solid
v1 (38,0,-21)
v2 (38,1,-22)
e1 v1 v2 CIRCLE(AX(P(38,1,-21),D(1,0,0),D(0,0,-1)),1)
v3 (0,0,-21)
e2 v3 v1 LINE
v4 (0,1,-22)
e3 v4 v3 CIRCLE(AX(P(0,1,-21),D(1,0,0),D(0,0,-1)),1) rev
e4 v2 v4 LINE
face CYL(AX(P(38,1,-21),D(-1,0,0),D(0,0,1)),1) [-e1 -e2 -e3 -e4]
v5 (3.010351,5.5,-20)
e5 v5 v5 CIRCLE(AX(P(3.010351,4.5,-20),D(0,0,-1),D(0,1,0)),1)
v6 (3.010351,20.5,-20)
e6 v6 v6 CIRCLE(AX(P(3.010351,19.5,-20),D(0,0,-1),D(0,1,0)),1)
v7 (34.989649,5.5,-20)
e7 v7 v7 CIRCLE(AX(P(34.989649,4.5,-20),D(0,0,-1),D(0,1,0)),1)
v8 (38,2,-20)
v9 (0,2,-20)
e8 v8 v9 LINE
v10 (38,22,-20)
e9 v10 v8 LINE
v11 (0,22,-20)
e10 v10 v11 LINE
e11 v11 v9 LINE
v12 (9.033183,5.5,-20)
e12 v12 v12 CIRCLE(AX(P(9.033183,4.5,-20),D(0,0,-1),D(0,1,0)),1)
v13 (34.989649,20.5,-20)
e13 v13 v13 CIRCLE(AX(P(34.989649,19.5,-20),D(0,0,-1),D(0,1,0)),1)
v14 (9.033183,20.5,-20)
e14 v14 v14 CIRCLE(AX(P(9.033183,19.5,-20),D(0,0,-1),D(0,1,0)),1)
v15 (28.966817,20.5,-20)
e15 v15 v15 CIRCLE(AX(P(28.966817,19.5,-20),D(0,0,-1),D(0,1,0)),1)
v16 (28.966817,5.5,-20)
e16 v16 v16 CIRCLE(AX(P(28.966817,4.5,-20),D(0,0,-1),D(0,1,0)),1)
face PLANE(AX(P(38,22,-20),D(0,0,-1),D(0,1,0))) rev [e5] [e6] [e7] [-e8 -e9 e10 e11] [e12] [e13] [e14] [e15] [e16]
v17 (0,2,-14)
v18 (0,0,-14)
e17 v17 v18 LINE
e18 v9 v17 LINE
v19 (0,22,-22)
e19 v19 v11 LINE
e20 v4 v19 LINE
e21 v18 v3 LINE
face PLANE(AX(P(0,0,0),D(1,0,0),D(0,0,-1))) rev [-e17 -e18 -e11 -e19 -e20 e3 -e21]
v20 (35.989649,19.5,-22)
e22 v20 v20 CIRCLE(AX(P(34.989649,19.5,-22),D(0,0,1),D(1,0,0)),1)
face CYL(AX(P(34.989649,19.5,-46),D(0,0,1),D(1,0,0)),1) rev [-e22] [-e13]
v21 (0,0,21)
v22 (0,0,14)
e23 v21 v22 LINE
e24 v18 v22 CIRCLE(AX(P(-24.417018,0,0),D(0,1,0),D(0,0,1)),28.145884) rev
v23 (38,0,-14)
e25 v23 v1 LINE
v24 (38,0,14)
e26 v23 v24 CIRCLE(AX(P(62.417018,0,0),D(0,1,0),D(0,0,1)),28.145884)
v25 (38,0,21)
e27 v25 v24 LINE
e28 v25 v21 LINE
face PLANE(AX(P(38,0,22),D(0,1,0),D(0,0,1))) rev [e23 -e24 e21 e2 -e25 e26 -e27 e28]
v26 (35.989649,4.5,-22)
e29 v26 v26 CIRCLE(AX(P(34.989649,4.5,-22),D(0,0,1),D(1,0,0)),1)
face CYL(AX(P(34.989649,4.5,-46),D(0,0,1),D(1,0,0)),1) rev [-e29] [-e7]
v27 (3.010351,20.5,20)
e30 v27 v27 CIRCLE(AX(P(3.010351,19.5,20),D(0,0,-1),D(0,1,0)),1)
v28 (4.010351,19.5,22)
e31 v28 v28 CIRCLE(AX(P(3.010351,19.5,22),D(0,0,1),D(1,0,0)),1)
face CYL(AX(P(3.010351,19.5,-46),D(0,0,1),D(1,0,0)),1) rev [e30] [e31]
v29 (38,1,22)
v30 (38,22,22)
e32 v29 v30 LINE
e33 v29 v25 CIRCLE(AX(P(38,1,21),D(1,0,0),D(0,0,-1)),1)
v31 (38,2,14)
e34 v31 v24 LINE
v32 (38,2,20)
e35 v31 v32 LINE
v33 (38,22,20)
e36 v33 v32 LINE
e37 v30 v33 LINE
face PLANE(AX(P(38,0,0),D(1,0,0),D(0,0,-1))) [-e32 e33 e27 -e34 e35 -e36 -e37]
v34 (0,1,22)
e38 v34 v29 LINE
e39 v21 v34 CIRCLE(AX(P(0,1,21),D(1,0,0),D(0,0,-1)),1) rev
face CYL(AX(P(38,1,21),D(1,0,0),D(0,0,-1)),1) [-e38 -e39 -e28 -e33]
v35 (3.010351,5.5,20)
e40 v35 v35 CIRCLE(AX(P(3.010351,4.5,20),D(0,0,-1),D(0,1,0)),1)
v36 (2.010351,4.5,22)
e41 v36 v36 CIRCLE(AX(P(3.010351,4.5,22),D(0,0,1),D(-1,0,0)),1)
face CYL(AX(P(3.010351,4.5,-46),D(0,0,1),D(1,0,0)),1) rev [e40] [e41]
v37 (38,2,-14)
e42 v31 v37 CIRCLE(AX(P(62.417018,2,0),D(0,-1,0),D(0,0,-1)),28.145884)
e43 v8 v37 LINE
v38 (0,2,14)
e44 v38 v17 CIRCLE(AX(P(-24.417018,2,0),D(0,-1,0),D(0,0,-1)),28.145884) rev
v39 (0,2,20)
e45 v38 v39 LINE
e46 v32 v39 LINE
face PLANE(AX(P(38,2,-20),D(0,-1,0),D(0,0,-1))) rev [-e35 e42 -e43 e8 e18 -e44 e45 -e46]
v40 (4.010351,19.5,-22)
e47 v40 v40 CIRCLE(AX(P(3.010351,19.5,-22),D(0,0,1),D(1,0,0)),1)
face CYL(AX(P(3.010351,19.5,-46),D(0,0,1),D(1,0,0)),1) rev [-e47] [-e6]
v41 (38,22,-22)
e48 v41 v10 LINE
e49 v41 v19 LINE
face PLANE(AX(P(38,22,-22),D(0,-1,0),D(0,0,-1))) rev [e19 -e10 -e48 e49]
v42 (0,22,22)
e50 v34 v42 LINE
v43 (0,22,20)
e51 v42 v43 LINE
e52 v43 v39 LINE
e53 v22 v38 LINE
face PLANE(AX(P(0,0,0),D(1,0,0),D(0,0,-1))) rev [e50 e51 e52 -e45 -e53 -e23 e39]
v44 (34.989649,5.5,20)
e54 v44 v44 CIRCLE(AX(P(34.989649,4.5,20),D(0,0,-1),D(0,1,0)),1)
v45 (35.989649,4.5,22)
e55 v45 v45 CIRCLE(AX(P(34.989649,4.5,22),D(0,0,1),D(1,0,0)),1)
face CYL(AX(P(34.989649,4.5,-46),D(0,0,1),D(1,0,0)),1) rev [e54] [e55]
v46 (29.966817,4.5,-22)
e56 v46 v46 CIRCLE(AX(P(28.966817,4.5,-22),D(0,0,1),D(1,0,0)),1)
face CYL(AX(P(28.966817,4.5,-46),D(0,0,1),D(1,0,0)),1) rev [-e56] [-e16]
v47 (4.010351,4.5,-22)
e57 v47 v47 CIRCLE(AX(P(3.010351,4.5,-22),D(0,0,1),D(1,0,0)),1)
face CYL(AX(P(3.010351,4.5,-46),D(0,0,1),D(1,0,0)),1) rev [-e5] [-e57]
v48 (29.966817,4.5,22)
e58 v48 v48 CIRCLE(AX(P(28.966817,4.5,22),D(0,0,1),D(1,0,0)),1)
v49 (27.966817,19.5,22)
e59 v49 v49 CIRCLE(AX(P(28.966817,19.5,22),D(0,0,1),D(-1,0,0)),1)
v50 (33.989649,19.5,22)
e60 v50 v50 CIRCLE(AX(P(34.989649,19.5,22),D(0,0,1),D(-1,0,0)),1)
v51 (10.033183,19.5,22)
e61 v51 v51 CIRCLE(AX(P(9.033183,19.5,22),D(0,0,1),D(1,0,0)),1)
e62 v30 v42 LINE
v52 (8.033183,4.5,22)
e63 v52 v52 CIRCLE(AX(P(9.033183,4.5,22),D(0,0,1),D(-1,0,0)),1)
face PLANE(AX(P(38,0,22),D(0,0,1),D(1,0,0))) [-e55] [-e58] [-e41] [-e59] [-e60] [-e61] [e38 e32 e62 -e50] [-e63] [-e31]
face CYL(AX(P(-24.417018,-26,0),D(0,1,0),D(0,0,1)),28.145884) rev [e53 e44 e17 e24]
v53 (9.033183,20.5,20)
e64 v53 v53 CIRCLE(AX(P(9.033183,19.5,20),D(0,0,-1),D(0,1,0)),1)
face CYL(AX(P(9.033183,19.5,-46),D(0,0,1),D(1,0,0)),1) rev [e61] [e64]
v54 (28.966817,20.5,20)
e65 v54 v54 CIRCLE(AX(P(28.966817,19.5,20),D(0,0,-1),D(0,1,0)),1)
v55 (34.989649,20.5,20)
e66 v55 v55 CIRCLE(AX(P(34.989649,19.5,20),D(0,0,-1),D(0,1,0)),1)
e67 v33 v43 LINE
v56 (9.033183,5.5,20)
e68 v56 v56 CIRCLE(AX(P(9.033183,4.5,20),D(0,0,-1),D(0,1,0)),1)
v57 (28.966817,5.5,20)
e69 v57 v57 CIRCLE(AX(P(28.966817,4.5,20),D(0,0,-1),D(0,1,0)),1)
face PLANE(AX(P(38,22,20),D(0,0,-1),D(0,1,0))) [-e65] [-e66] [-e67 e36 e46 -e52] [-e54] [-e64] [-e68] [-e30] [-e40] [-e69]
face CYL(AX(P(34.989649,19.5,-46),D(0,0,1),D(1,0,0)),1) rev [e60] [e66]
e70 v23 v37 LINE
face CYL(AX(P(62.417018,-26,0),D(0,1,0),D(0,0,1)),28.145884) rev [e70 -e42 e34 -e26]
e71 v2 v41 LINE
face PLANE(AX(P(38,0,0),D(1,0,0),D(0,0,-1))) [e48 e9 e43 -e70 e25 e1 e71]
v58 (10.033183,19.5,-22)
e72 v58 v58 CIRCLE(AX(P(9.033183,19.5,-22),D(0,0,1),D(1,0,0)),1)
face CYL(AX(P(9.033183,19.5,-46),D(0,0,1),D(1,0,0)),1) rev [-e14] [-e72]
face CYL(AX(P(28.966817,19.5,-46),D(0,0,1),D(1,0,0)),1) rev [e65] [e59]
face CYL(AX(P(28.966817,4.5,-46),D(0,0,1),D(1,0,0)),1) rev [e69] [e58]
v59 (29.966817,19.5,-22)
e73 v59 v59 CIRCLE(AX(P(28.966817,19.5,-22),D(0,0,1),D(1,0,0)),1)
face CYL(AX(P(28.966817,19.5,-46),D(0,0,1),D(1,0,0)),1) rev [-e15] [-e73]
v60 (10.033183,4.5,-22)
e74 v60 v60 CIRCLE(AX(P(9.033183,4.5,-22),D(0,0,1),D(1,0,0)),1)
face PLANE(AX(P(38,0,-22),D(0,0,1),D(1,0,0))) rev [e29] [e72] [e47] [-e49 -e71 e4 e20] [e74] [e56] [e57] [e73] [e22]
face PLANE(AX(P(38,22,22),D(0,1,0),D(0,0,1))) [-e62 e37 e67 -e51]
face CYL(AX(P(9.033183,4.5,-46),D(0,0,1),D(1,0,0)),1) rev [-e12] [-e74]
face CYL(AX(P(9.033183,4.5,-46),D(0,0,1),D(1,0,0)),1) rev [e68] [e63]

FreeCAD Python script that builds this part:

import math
import FreeCAD as App
import Part
import Sketcher
from FreeCAD import Vector


def edges_at(feature, points):
    """Names of the edges that pass closest to the given points."""
    edges = feature.Shape.Edges
    near = lambda p: min(range(len(edges)), key=lambda i: edges[i].distToShape(Part.Vertex(*p))[0])
    return sorted({f"Edge{near(p) + 1}" for p in points})

doc = App.newDocument("Part")
body = doc.addObject("PartDesign::Body", "Body")

# Sketch on YZ plane
sketch1 = body.newObject("Sketcher::SketchObject", "Sketch")
sketch1.AttachmentSupport = (doc.getObject("YZ_Plane"), [""])
sketch1.MapMode = "FlatFace"
sketch1.addGeometry(Part.LineSegment(Vector(0, 22, 0), Vector(0, -22, 0)), False)
sketch1.addGeometry(Part.LineSegment(Vector(0, -22, 0), Vector(22, -22, 0)), False)
sketch1.addGeometry(Part.LineSegment(Vector(22, -22, 0), Vector(22, -20, 0)), False)
sketch1.addGeometry(Part.LineSegment(Vector(22, -20, 0), Vector(2, -20, 0)), False)
sketch1.addGeometry(Part.LineSegment(Vector(2, -20, 0), Vector(2, 20, 0)), False)
sketch1.addGeometry(Part.LineSegment(Vector(2, 20, 0), Vector(22, 20, 0)), False)
sketch1.addGeometry(Part.LineSegment(Vector(22, 20, 0), Vector(22, 22, 0)), False)
sketch1.addGeometry(Part.LineSegment(Vector(22, 22, 0), Vector(0, 22, 0)), False)
sketch1.addConstraint(Sketcher.Constraint("Coincident", 0, 2, 1, 1))
sketch1.addConstraint(Sketcher.Constraint("Coincident", 1, 2, 2, 1))
sketch1.addConstraint(Sketcher.Constraint("Coincident", 2, 2, 3, 1))
sketch1.addConstraint(Sketcher.Constraint("Coincident", 3, 2, 4, 1))
sketch1.addConstraint(Sketcher.Constraint("Coincident", 4, 2, 5, 1))
sketch1.addConstraint(Sketcher.Constraint("Coincident", 5, 2, 6, 1))
sketch1.addConstraint(Sketcher.Constraint("Coincident", 6, 2, 7, 1))
sketch1.addConstraint(Sketcher.Constraint("Coincident", 7, 2, 0, 1))
sketch1.addConstraint(Sketcher.Constraint("Vertical", 0))
sketch1.addConstraint(Sketcher.Constraint("Horizontal", 1))
sketch1.addConstraint(Sketcher.Constraint("Vertical", 2))
sketch1.addConstraint(Sketcher.Constraint("Horizontal", 3))
sketch1.addConstraint(Sketcher.Constraint("Vertical", 4))
sketch1.addConstraint(Sketcher.Constraint("Horizontal", 5))
sketch1.addConstraint(Sketcher.Constraint("Vertical", 6))
sketch1.addConstraint(Sketcher.Constraint("Horizontal", 7))
sketch1.addConstraint(Sketcher.Constraint("Symmetric", 0, 2, 7, 2, -1, 1))
sketch1.addConstraint(Sketcher.Constraint("Symmetric", 2, 2, 5, 2, -1))
sketch1.addConstraint(Sketcher.Constraint("DistanceX", 1, 1, 1, 2, 22.0))
sketch1.addConstraint(Sketcher.Constraint("DistanceX", 3, 2, 3, 1, 20.0))
sketch1.addConstraint(Sketcher.Constraint("DistanceY", 0, 2, 0, 1, 44.0))
sketch1.addConstraint(Sketcher.Constraint("DistanceY", 2, 1, 2, 2, 2.0))
pad1 = body.newObject("PartDesign::Pad", "Pad")
pad1.Profile = sketch1
pad1.Length = 38

# Sketch on XZ plane
sketch2 = body.newObject("Sketcher::SketchObject", "Sketch001")
sketch2.AttachmentSupport = (doc.getObject("XZ_Plane"), [""])
sketch2.MapMode = "FlatFace"
sketch2.AttachmentOffset = App.Placement(Vector(0, 0, -12), App.Rotation())
sketch2.addGeometry(Part.ArcOfCircle(Part.Circle(Vector(-24.417018, 0, 0), Vector(0, 0, 1), 28.145884), math.radians(-29.828691), math.radians(29.828691)), False)
sketch2.addGeometry(Part.LineSegment(Vector(0, -14, 0), Vector(0, 14, 0)), False)
sketch2.addGeometry(Part.LineSegment(Vector(38, 14, 0), Vector(38, -14, 0)), False)
sketch2.addGeometry(Part.ArcOfCircle(Part.Circle(Vector(62.417018, 0, 0), Vector(0, 0, 1), 28.145884), math.radians(150.171309), math.radians(209.828691)), False)
sketch2.addConstraint(Sketcher.Constraint("Coincident", 0, 1, 1, 1))
sketch2.addConstraint(Sketcher.Constraint("Coincident", 1, 2, 0, 2))
sketch2.addConstraint(Sketcher.Constraint("Coincident", 2, 1, 3, 1))
sketch2.addConstraint(Sketcher.Constraint("Coincident", 3, 2, 2, 2))
sketch2.addConstraint(Sketcher.Constraint("Vertical", 1))
sketch2.addConstraint(Sketcher.Constraint("Vertical", 2))
sketch2.addConstraint(Sketcher.Constraint("Equal", 0, 3))
sketch2.addConstraint(Sketcher.Constraint("Symmetric", 0, 1, 1, 2, -1, 1))
sketch2.addConstraint(Sketcher.Constraint("PointOnObject", 3, 3, -1))
sketch2.addConstraint(Sketcher.Constraint("Horizontal", 1, 2, 2, 1))
sketch2.addConstraint(Sketcher.Constraint("DistanceY", 1, 1, 1, 2, 28.0))
sketch2.addConstraint(Sketcher.Constraint("DistanceX", -1, 1, 2, 1, 38.0))
sketch2.addConstraint(Sketcher.Constraint("Radius", 0, 28.145884))
pocket1 = body.newObject("PartDesign::Pocket", "Pocket")
pocket1.Profile = sketch2
pocket1.Length = 38
pocket1.Reversed = True

# Sketch on XY plane
sketch3 = body.newObject("Sketcher::SketchObject", "Sketch002")
sketch3.AttachmentSupport = (doc.getObject("XY_Plane"), [""])
sketch3.MapMode = "FlatFace"
sketch3.AttachmentOffset = App.Placement(Vector(0, 0, 22), App.Rotation())
sketch3.addGeometry(Part.Circle(Vector(3.010351, 19.5, 0), Vector(0, 0, 1), 1), False)
sketch3.addGeometry(Part.Circle(Vector(9.033183, 19.5, 0), Vector(0, 0, 1), 1), False)
sketch3.addGeometry(Part.Circle(Vector(3.010351, 4.5, 0), Vector(0, 0, 1), 1), False)
sketch3.addGeometry(Part.Circle(Vector(9.033183, 4.5, 0), Vector(0, 0, 1), 1), False)
sketch3.addGeometry(Part.Circle(Vector(28.966817, 19.5, 0), Vector(0, 0, 1), 1), False)
sketch3.addGeometry(Part.Circle(Vector(34.989649, 19.5, 0), Vector(0, 0, 1), 1), False)
sketch3.addGeometry(Part.Circle(Vector(34.989649, 4.5, 0), Vector(0, 0, 1), 1), False)
sketch3.addGeometry(Part.Circle(Vector(28.966817, 4.5, 0), Vector(0, 0, 1), 1), False)
sketch3.addConstraint(Sketcher.Constraint("Equal", 0, 1))
sketch3.addConstraint(Sketcher.Constraint("Equal", 1, 2))
sketch3.addConstraint(Sketcher.Constraint("Equal", 2, 3))
sketch3.addConstraint(Sketcher.Constraint("Equal", 3, 4))
sketch3.addConstraint(Sketcher.Constraint("Equal", 4, 5))
sketch3.addConstraint(Sketcher.Constraint("Equal", 5, 6))
sketch3.addConstraint(Sketcher.Constraint("Equal", 6, 7))
sketch3.addConstraint(Sketcher.Constraint("Horizontal", 0, 3, 1, 3))
sketch3.addConstraint(Sketcher.Constraint("Horizontal", 2, 3, 3, 3))
sketch3.addConstraint(Sketcher.Constraint("Horizontal", 1, 3, 4, 3))
sketch3.addConstraint(Sketcher.Constraint("Horizontal", 4, 3, 5, 3))
sketch3.addConstraint(Sketcher.Constraint("Horizontal", 3, 3, 6, 3))
sketch3.addConstraint(Sketcher.Constraint("Horizontal", 6, 3, 7, 3))
sketch3.addConstraint(Sketcher.Constraint("Vertical", 0, 3, 2, 3))
sketch3.addConstraint(Sketcher.Constraint("Vertical", 1, 3, 3, 3))
sketch3.addConstraint(Sketcher.Constraint("Vertical", 5, 3, 6, 3))
sketch3.addConstraint(Sketcher.Constraint("Vertical", 4, 3, 7, 3))
sketch3.addConstraint(Sketcher.Constraint("Diameter", 0, 2.0))
sketch3.addConstraint(Sketcher.Constraint("DistanceY", 2, 3, 0, 3, 15.0))
sketch3.addConstraint(Sketcher.Constraint("DistanceY", -1, 1, 0, 3, 19.5))
sketch3.addConstraint(Sketcher.Constraint("DistanceX", -1, 1, 0, 3, 3.010351))
sketch3.addConstraint(Sketcher.Constraint("DistanceX", -1, 1, 5, 3, 34.989649))
sketch3.addConstraint(Sketcher.Constraint("DistanceX", 0, 3, 1, 3, 6.022831))
sketch3.addConstraint(Sketcher.Constraint("DistanceX", 4, 3, 5, 3, 6.022831))
pocket2 = body.newObject("PartDesign::Pocket", "Pocket001")
pocket2.Profile = sketch3
pocket2.Length = 68
doc.recompute()

fillet = body.newObject("PartDesign::Fillet", "Fillet")
fillet.Base = (pocket2, edges_at(pocket2, [(19, 0, 22), (19, 0, -22)]))
fillet.Radius = 1

doc.recompute()
